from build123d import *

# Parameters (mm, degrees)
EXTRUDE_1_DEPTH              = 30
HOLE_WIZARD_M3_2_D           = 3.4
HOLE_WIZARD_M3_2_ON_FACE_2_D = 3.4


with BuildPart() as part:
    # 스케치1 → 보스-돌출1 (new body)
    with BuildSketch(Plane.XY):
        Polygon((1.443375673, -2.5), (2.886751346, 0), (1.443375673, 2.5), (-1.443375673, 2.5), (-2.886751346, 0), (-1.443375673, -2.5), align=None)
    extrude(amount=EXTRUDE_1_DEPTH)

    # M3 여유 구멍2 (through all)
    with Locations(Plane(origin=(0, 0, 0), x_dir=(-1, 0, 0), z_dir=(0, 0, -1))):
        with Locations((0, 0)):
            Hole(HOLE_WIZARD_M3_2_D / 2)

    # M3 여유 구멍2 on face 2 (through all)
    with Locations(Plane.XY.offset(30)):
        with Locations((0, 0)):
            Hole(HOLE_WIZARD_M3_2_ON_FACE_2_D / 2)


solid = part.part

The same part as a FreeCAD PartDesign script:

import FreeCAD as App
import Part
import Sketcher
Q = App.Units.Quantity

doc = App.newDocument("Part")
params = doc.addObject("Spreadsheet::Sheet", "Params")
for row, (alias, value) in enumerate([
    ("pad1_length", "30 mm"),
    ("sketch2_diameter", "3.4 mm"),
    ("hole_diameter", "3.4 mm"),
    ("sketch3_diameter", "3.4 mm"),
    ("hole2_diameter", "3.4 mm"),
], start=1):
    params.set(f"A{row}", alias)
    params.set(f"B{row}", "=" + value)
    params.setAlias(f"B{row}", alias)

body = doc.addObject("PartDesign::Body", "Body")

# Sketch on XY plane
sketch1 = body.newObject("Sketcher::SketchObject", "Sketch")
sketch1.AttachmentSupport = (doc.getObject("XY_Plane"), [""])
sketch1.MapMode = "FlatFace"
sketch1.addGeometry([
    Part.LineSegment(App.Vector(1.4, -2.5, 0), App.Vector(2.9, 0, 0)),  # 0
    Part.LineSegment(App.Vector(2.9, 0, 0), App.Vector(1.4, 2.5, 0)),  # 1
    Part.LineSegment(App.Vector(1.4, 2.5, 0), App.Vector(-1.4, 2.5, 0)),  # 2
    Part.LineSegment(App.Vector(-1.4, 2.5, 0), App.Vector(-2.9, 0, 0)),  # 3
    Part.LineSegment(App.Vector(-2.9, 0, 0), App.Vector(-1.4, -2.5, 0)),  # 4
    Part.LineSegment(App.Vector(-1.4, -2.5, 0), App.Vector(1.4, -2.5, 0)),  # 5
], False)
sketch1.addConstraint([
    Sketcher.Constraint("Coincident", 0, 2, 1, 1),
    Sketcher.Constraint("Coincident", 1, 2, 2, 1),
    Sketcher.Constraint("Coincident", 2, 2, 3, 1),
    Sketcher.Constraint("Coincident", 3, 2, 4, 1),
    Sketcher.Constraint("Coincident", 4, 2, 5, 1),
    Sketcher.Constraint("Coincident", 5, 2, 0, 1),
    Sketcher.Constraint("Horizontal", 2),
    Sketcher.Constraint("Horizontal", 5),
    Sketcher.Constraint("Symmetric", 0, 2, 3, 2, -1, 1),
    Sketcher.Constraint("Symmetric", 1, 2, 4, 2, -1, 1),
    Sketcher.Constraint("PointOnObject", 0, 2, -1),
    Sketcher.Constraint("Parallel", 0, 3),
    Sketcher.Constraint("Vertical", 2, 2, 4, 2),
    Sketcher.Constraint("Angle", 0, Q("60 deg")),
    Sketcher.Constraint("DistanceY", 4, 2, 2, 2, 5.0),
    Sketcher.Constraint("DistanceX", 2, 2, 2, 1, 2.886751),
])
pad1 = body.newObject("PartDesign::Pad", "Pad")
pad1.Profile = sketch1
pad1.setExpression("Length", "Params.pad1_length")

# Sketch on XY plane
sketch2 = body.newObject("Sketcher::SketchObject", "Sketch001")
sketch2.AttachmentSupport = (doc.getObject("XY_Plane"), [""])
sketch2.MapMode = "FlatFace"
sketch2.addGeometry(Part.Circle(App.Vector(0, 0, 0), App.Vector(0, 0, 1), 1.7), False)
sketch2.addConstraint([
    Sketcher.Constraint("Coincident", 0, 3, -1, 1),
    Sketcher.Constraint("Diameter", 0, 3.4),
])
sketch2.setExpression("Constraints[1]", "Params.sketch2_diameter")
doc.recompute()
hole = body.newObject("PartDesign::Hole", "Hole")
hole.Profile = sketch2
hole.ThreadType = "None"
hole.setExpression("Diameter", "Params.hole_diameter")
hole.DepthType = "ThroughAll"
hole.Reversed = True

# Sketch on XY plane
sketch3 = body.newObject("Sketcher::SketchObject", "Sketch002")
sketch3.AttachmentSupport = (doc.getObject("XY_Plane"), [""])
sketch3.MapMode = "FlatFace"
sketch3.AttachmentOffset = App.Placement(App.Vector(0, 0, 30), App.Rotation())
sketch3.addGeometry(Part.Circle(App.Vector(0, 0, 0), App.Vector(0, 0, 1), 1.7), False)
sketch3.addConstraint([
    Sketcher.Constraint("Coincident", 0, 3, -1, 1),
    Sketcher.Constraint("Diameter", 0, 3.4),
])
sketch3.setExpression("Constraints[1]", "Params.sketch3_diameter")
doc.recompute()
hole2 = body.newObject("PartDesign::Hole", "Hole001")
hole2.Profile = sketch3
hole2.ThreadType = "None"
hole2.setExpression("Diameter", "Params.hole2_diameter")
hole2.DepthType = "ThroughAll"

doc.recompute()
